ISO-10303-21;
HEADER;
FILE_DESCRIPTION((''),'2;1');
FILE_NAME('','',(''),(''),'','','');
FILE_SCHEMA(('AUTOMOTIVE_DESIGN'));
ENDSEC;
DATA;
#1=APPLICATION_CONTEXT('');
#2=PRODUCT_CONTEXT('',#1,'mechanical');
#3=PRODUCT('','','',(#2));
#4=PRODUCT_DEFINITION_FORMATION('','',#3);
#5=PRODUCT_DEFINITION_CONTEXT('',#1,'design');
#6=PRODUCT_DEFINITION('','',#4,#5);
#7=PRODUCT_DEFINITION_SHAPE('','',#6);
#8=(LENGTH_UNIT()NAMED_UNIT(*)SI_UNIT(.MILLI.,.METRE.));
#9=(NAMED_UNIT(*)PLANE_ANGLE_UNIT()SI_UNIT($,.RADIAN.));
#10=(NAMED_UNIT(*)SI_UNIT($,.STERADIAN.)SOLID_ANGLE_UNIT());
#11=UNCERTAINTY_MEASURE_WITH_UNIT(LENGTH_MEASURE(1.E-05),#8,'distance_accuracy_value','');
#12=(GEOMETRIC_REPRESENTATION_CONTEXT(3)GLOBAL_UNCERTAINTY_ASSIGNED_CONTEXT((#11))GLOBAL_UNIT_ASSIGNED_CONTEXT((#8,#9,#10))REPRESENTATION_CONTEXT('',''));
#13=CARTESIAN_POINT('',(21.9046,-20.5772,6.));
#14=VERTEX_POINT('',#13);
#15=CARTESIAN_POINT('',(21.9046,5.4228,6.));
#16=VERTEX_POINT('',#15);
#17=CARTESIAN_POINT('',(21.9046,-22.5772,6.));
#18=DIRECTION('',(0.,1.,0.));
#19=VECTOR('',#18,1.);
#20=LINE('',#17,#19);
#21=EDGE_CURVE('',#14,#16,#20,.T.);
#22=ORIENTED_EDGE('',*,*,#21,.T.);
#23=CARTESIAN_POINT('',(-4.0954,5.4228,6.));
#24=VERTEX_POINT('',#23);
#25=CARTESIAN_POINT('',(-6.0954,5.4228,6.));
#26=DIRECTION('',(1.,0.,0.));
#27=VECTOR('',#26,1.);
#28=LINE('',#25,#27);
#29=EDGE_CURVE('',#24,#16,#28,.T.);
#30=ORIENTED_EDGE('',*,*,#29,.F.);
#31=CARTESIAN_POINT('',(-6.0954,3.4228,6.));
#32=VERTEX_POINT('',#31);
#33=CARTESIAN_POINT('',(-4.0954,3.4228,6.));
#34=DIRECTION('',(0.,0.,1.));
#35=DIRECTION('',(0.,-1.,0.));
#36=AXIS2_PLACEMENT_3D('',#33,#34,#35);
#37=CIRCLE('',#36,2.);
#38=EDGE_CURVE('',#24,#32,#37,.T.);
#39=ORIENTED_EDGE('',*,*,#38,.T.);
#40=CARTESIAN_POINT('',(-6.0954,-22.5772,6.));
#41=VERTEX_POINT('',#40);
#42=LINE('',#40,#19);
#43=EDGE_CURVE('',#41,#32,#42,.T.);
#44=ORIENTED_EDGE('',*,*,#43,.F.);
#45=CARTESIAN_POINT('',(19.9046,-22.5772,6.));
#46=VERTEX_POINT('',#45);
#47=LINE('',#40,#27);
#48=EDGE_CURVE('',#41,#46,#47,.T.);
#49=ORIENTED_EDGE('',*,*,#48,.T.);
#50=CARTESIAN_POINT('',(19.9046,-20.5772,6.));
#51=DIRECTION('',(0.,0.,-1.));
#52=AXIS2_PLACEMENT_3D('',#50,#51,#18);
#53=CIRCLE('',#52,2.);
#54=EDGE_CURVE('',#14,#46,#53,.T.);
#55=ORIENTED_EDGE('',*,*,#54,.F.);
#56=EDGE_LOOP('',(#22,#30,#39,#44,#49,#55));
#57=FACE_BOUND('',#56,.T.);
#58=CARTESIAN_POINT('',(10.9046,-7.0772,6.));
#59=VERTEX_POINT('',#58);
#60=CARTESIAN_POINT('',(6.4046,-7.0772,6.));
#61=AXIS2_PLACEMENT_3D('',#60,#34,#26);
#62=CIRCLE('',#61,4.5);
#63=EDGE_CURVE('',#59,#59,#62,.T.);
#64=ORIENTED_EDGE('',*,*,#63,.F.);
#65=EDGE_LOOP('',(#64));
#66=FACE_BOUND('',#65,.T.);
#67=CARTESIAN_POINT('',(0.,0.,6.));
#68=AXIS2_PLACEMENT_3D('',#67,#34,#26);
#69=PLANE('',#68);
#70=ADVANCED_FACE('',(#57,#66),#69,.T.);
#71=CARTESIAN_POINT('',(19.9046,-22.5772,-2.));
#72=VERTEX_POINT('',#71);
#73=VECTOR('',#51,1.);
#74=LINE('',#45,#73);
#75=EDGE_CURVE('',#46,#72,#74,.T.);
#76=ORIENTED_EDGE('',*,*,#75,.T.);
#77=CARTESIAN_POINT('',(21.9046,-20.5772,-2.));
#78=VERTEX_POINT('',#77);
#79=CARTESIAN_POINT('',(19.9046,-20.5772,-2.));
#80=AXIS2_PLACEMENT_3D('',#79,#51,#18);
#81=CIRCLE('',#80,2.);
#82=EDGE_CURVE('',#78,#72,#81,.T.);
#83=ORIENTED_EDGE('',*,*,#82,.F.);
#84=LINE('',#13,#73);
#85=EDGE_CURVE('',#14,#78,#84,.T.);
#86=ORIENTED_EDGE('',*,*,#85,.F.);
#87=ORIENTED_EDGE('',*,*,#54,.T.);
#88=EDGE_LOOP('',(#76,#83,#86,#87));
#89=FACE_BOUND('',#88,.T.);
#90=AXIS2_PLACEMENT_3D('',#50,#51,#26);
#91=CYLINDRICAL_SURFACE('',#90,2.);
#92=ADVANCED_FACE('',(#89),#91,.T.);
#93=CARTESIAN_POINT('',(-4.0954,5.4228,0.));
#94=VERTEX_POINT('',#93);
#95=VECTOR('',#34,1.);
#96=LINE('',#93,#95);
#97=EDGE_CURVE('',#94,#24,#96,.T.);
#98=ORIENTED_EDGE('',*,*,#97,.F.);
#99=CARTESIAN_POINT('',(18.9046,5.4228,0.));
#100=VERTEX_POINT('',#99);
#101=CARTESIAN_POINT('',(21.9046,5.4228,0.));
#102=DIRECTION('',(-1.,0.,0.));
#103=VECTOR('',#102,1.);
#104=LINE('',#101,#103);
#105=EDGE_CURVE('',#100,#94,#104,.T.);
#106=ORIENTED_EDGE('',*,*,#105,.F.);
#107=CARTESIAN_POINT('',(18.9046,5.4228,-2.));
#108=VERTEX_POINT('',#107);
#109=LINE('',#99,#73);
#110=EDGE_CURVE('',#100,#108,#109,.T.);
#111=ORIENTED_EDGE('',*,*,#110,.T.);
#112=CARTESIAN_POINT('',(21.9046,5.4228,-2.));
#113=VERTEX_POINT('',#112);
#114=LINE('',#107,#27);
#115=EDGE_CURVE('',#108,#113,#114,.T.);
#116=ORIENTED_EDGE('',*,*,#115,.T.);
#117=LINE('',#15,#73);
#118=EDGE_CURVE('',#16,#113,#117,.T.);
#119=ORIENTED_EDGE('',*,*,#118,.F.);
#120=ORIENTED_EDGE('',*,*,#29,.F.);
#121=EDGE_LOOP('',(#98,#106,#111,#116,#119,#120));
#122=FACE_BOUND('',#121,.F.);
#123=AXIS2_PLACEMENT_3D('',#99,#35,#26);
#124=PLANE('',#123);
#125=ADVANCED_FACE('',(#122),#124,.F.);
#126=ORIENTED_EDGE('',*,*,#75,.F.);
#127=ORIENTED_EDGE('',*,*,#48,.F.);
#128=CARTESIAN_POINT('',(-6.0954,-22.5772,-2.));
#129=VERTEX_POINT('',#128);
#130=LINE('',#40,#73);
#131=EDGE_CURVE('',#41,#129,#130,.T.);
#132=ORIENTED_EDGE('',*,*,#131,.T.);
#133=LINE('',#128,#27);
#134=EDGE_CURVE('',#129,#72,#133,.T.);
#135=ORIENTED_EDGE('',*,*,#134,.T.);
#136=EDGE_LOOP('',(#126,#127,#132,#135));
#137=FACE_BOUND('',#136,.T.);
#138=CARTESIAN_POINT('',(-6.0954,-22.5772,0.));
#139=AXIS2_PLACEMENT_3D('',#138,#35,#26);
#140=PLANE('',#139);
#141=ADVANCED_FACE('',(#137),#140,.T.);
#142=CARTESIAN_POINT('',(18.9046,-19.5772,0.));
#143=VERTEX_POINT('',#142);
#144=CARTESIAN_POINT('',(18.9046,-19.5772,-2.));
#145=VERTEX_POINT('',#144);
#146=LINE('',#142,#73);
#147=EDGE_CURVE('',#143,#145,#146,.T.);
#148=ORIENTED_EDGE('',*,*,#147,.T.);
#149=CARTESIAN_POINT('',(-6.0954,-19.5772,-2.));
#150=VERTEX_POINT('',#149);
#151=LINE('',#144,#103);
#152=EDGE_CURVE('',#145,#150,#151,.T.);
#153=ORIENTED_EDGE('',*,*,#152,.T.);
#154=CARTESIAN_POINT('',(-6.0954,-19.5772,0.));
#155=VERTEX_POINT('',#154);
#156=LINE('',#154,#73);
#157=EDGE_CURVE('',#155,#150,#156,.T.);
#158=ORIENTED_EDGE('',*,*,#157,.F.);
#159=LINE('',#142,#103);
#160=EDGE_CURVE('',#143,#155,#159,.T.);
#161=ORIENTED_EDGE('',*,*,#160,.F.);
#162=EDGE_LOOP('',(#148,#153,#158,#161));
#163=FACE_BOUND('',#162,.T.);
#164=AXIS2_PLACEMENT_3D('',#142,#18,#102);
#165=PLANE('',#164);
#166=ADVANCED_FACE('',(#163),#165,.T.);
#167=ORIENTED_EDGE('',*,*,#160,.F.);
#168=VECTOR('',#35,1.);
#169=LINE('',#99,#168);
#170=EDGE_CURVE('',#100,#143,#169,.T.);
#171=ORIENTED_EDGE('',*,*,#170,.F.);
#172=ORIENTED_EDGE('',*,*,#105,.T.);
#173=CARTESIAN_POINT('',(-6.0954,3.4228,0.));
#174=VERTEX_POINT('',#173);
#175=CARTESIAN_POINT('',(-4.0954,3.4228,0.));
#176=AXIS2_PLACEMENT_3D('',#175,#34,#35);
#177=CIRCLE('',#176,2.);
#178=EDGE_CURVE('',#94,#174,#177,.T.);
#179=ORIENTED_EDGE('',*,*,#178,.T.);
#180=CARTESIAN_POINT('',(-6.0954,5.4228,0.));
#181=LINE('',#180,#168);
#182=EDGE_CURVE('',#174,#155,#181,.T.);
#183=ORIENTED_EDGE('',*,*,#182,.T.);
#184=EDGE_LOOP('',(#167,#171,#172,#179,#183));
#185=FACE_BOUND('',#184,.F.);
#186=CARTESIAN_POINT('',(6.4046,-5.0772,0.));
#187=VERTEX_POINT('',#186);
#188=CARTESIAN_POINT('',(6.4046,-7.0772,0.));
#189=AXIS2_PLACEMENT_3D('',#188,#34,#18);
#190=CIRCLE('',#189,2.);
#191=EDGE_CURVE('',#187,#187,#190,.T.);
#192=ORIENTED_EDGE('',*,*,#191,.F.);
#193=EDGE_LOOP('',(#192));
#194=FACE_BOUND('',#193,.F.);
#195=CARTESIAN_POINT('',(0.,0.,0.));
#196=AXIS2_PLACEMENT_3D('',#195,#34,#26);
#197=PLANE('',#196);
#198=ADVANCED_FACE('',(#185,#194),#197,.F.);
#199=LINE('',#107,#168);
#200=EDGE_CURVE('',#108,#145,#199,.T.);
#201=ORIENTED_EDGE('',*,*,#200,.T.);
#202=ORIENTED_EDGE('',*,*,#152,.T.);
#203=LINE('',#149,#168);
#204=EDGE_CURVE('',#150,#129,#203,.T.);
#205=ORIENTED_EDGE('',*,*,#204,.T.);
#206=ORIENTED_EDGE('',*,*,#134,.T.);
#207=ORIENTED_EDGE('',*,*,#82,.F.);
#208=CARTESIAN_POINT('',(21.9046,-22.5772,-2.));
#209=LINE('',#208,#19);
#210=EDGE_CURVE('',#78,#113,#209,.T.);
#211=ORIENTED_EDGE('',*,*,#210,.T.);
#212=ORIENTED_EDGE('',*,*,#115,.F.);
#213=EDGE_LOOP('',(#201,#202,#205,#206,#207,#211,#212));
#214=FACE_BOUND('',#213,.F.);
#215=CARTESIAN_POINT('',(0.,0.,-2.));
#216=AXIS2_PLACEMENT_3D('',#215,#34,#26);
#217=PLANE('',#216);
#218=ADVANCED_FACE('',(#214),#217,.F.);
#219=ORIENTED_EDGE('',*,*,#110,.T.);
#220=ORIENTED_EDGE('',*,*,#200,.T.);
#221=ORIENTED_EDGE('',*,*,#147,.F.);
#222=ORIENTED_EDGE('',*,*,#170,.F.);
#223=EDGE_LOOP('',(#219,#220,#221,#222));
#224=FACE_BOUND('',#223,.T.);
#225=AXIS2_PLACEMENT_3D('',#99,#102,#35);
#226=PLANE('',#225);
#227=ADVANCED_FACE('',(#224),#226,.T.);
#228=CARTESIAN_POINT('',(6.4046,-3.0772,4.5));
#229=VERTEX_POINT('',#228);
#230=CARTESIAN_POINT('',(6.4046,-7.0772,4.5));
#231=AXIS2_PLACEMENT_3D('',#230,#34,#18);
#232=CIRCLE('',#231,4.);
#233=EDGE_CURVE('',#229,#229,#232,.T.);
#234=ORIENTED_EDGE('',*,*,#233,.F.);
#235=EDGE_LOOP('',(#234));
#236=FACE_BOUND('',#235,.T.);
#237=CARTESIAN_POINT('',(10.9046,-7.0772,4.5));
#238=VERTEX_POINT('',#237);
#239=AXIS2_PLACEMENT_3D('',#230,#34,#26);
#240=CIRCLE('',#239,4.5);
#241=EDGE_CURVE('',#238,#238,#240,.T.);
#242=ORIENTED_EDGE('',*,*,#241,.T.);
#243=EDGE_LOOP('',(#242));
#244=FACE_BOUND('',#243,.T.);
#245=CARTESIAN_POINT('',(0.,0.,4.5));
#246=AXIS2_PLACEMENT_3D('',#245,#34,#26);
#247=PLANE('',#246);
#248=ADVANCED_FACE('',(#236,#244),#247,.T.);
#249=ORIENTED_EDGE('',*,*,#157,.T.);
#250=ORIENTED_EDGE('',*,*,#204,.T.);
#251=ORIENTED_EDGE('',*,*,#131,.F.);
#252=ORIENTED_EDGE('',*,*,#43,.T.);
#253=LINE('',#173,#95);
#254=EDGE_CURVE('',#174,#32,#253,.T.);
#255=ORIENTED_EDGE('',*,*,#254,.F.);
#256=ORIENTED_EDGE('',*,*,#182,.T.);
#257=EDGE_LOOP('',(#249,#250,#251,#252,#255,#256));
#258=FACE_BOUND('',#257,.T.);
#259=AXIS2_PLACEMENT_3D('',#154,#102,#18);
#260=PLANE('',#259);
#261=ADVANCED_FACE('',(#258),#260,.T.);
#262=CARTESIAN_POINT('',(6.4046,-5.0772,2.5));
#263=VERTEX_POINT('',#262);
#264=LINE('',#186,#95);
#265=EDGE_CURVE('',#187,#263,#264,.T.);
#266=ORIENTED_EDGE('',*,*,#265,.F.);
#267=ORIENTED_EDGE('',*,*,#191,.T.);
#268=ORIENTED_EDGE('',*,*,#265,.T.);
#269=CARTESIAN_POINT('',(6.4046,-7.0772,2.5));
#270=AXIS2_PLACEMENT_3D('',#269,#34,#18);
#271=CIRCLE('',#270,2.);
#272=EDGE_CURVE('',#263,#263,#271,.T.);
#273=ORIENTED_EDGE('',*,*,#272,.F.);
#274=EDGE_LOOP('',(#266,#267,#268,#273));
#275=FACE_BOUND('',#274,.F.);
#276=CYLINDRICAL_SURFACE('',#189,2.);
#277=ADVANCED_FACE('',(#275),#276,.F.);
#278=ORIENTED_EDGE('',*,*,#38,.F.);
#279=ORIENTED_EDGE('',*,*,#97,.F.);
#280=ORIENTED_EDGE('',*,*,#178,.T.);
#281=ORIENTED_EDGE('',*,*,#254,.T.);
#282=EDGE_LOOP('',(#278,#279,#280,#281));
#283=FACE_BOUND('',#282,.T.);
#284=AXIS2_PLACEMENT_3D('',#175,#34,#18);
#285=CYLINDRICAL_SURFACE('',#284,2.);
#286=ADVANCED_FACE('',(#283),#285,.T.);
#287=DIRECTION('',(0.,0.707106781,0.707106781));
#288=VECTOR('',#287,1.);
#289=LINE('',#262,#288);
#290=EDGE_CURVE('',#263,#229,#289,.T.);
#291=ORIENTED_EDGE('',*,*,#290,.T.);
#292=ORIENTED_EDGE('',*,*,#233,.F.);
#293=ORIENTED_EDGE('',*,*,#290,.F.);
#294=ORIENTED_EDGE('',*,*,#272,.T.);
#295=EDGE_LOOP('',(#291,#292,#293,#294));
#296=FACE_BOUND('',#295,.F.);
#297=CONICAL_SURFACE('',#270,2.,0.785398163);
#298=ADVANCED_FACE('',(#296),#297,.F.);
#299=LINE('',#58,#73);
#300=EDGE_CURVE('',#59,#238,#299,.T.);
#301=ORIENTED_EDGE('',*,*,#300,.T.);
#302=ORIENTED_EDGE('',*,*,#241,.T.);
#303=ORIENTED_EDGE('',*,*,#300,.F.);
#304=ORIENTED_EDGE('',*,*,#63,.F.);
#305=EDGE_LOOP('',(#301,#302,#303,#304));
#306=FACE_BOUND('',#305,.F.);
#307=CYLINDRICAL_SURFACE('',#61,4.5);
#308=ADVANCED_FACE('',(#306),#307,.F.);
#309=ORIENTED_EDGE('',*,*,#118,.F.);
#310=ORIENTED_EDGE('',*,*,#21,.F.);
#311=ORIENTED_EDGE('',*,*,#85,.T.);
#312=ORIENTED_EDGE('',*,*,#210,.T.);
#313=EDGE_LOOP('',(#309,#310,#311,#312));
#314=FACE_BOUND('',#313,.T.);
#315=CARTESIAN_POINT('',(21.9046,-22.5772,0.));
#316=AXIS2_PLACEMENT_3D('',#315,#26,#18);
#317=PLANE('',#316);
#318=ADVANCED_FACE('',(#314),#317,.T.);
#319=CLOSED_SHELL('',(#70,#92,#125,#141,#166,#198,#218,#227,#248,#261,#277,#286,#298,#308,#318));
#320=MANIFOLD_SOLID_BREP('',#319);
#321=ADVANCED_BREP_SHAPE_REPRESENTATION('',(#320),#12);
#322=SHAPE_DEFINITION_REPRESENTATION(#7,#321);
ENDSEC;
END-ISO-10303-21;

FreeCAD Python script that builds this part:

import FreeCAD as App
import Part
import Sketcher
Q = App.Units.Quantity


def edges_at(feature, points):
    """Names of the edges that pass closest to the given points."""
    edges = feature.Shape.Edges
    near = lambda p: min(range(len(edges)), key=lambda i: edges[i].distToShape(Part.Vertex(*p))[0])
    return sorted({f"Edge{near(p) + 1}" for p in points})

doc = App.newDocument("Part")
body = doc.addObject("PartDesign::Body", "Body")

# Sketch on XY plane
sketch1 = body.newObject("Sketcher::SketchObject", "Sketch")
sketch1.AttachmentSupport = (doc.getObject("XY_Plane"), [""])
sketch1.MapMode = "FlatFace"
sketch1.addGeometry([
    Part.LineSegment(App.Vector(-6, 5, 0), App.Vector(-6, -23, 0)),
    Part.LineSegment(App.Vector(-6, -23, 0), App.Vector(22, -23, 0)),
    Part.LineSegment(App.Vector(22, -23, 0), App.Vector(22, 5, 0)),
    Part.LineSegment(App.Vector(22, 5, 0), App.Vector(-6, 5, 0)),
], False)
sketch1.addConstraint([
    Sketcher.Constraint("Coincident", 0, 2, 1, 1),
    Sketcher.Constraint("Coincident", 1, 2, 2, 1),
    Sketcher.Constraint("Coincident", 2, 2, 3, 1),
    Sketcher.Constraint("Coincident", 3, 2, 0, 1),
    Sketcher.Constraint("Vertical", 0),
    Sketcher.Constraint("Horizontal", 1),
    Sketcher.Constraint("Vertical", 2),
    Sketcher.Constraint("Horizontal", 3),
    Sketcher.Constraint("Equal", 3, 0),
    Sketcher.Constraint("DistanceX", 1, 1, 1, 2, Q("28 mm")),
    Sketcher.Constraint("DistanceX", 0, 2, -1, 1, Q("6.0954 mm")),
    Sketcher.Constraint("DistanceY", 0, 2, -1, 1, Q("22.5772 mm")),
])
pad1 = body.newObject("PartDesign::Pad", "Pad")
pad1.Profile = sketch1
pad1.Length = 6

# Sketch on XY plane
sketch2 = body.newObject("Sketcher::SketchObject", "Sketch001")
sketch2.AttachmentSupport = (doc.getObject("XY_Plane"), [""])
sketch2.MapMode = "FlatFace"
sketch2.addGeometry([
    Part.LineSegment(App.Vector(21.9, 5.4, 0), App.Vector(18.9, 5.4, 0)),  # 0
    Part.LineSegment(App.Vector(18.9, 5.4, 0), App.Vector(18.9, -19.6, 0)),  # 1
    Part.LineSegment(App.Vector(18.9, -19.6, 0), App.Vector(-6.1, -19.6, 0)),  # 2
    Part.LineSegment(App.Vector(-6.1, -19.6, 0), App.Vector(-6.1, -22.6, 0)),  # 3
    Part.LineSegment(App.Vector(-6.1, -22.6, 0), App.Vector(21.9, -22.6, 0)),  # 4
    Part.LineSegment(App.Vector(21.9, -22.6, 0), App.Vector(21.9, 5.4, 0)),  # 5
], False)
sketch2.addConstraint([
    Sketcher.Constraint("Coincident", 0, 2, 1, 1),
    Sketcher.Constraint("Coincident", 1, 2, 2, 1),
    Sketcher.Constraint("Coincident", 2, 2, 3, 1),
    Sketcher.Constraint("Coincident", 3, 2, 4, 1),
    Sketcher.Constraint("Coincident", 4, 2, 5, 1),
    Sketcher.Constraint("Coincident", 5, 2, 0, 1),
    Sketcher.Constraint("Horizontal", 0),
    Sketcher.Constraint("Vertical", 1),
    Sketcher.Constraint("Horizontal", 2),
    Sketcher.Constraint("Vertical", 3),
    Sketcher.Constraint("Horizontal", 4),
    Sketcher.Constraint("Vertical", 5),
    Sketcher.Constraint("Equal", 2, 1),
    Sketcher.Constraint("Equal", 0, 3),
    Sketcher.Constraint("DistanceX", 0, 2, 0, 1, Q("3 mm")),
    Sketcher.Constraint("DistanceX", 2, 2, 2, 1, Q("25 mm")),
    Sketcher.Constraint("DistanceX", -1, 1, 0, 2, Q("18.9046 mm")),
    Sketcher.Constraint("DistanceY", -1, 1, 0, 2, Q("5.4228 mm")),
])
pad2 = body.newObject("PartDesign::Pad", "Pad001")
pad2.Profile = sketch2
pad2.Length = 2
pad2.Reversed = True

# Sketch on XY plane
sketch3 = body.newObject("Sketcher::SketchObject", "Sketch002")
sketch3.AttachmentSupport = (doc.getObject("XY_Plane"), [""])
sketch3.MapMode = "FlatFace"
sketch3.addGeometry(Part.Circle(App.Vector(6.4, -7.1, 0), App.Vector(0, 0, 1), 2), False)
sketch3.addConstraint([
    Sketcher.Constraint("Diameter", 0, Q("4 mm")),
    Sketcher.Constraint("DistanceX", -1, 1, 0, 3, Q("6.4046 mm")),
    Sketcher.Constraint("DistanceY", 0, 3, -1, 1, Q("7.0772 mm")),
])
doc.recompute()
hole = body.newObject("PartDesign::Hole", "Hole")
hole.Profile = sketch3
hole.ThreadType = "None"
hole.Diameter = 4
hole.DepthType = "ThroughAll"
hole.Reversed = True

# Sketch on XY plane
sketch4 = body.newObject("Sketcher::SketchObject", "Sketch003")
sketch4.AttachmentSupport = (doc.getObject("XY_Plane"), [""])
sketch4.MapMode = "FlatFace"
sketch4.AttachmentOffset = App.Placement(App.Vector(0, 0, 6), App.Rotation())
sketch4.addGeometry([
    Part.Circle(App.Vector(6.4, -7.1, 0), App.Vector(0, 0, 1), 4.5),
    Part.Circle(App.Vector(6.4, -7.1, 0), App.Vector(0, 0, 1), 2),
], False)
sketch4.addConstraint([
    Sketcher.Constraint("Coincident", 1, 3, 0, 3),
    Sketcher.Constraint("Diameter", 0, Q("9 mm")),
    Sketcher.Constraint("Diameter", 1, Q("4 mm")),
    Sketcher.Constraint("DistanceX", -1, 1, 0, 3, Q("6.4046 mm")),
    Sketcher.Constraint("DistanceY", 0, 3, -1, 1, Q("7.0772 mm")),
])
pocket1 = body.newObject("PartDesign::Pocket", "Pocket")
pocket1.Profile = sketch4
pocket1.Length = 1.5
doc.recompute()

chamfer = body.newObject("PartDesign::Chamfer", "Chamfer")
chamfer.Base = (pocket1, edges_at(pocket1, [(6.405, -9.077, 4.5)]))
chamfer.Size = 2
doc.recompute()

fillet = body.newObject("PartDesign::Fillet", "Fillet")
fillet.Base = (chamfer, edges_at(chamfer, [(21.905, -22.577, 2), (-6.095, 5.423, 3)]))
fillet.Radius = 2

doc.recompute()
